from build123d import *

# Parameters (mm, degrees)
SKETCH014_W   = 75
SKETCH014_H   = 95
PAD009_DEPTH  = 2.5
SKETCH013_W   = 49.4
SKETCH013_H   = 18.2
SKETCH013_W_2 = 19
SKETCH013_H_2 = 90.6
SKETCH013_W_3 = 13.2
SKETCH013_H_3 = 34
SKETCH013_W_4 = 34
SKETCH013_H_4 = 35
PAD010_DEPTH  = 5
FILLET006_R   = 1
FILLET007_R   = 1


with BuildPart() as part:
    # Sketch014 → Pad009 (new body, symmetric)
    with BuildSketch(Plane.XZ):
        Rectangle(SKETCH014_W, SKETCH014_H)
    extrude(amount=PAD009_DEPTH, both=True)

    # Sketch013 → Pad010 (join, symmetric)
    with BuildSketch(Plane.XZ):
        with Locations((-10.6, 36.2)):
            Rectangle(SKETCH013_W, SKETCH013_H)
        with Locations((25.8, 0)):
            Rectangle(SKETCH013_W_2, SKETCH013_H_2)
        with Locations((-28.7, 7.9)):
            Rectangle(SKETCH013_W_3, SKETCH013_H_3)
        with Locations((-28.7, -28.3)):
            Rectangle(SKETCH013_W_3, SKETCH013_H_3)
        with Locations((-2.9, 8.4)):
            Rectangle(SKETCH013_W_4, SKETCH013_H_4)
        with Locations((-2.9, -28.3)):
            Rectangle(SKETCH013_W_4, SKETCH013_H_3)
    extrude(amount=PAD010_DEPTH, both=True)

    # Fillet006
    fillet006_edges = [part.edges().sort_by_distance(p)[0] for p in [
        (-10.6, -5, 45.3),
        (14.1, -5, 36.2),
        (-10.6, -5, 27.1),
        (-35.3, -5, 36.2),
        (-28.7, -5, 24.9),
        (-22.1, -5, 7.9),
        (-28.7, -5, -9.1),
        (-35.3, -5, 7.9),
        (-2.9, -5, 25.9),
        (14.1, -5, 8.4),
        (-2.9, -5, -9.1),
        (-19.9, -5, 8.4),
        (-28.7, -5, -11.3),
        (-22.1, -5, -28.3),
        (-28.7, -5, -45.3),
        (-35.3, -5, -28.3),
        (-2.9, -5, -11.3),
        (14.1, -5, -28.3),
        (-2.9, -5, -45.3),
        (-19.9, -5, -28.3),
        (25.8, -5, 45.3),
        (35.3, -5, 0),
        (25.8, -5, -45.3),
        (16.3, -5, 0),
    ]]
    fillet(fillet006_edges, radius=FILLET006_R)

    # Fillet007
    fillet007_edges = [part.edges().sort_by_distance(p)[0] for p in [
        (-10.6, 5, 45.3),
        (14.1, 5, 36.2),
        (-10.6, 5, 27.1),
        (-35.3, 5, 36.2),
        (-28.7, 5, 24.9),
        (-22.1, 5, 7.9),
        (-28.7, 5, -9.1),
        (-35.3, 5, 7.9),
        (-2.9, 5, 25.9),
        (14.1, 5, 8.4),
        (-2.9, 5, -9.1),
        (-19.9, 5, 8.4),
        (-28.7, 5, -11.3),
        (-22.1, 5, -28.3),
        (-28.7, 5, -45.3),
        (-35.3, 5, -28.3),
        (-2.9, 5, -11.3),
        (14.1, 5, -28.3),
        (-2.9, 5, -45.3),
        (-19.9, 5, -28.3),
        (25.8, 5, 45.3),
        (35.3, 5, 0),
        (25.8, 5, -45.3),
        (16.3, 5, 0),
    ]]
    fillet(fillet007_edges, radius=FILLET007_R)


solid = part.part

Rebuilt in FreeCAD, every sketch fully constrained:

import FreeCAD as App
import Part
import Sketcher
from FreeCAD import Vector


def edges_at(feature, points):
    """Names of the edges that pass closest to the given points."""
    edges = feature.Shape.Edges
    near = lambda p: min(range(len(edges)), key=lambda i: edges[i].distToShape(Part.Vertex(*p))[0])
    return sorted({f"Edge{near(p) + 1}" for p in points})

doc = App.newDocument("Part")
body = doc.addObject("PartDesign::Body", "Body")

# Sketch on XZ plane
sketch1 = body.newObject("Sketcher::SketchObject", "Sketch")
sketch1.AttachmentSupport = (doc.getObject("XZ_Plane"), [""])
sketch1.MapMode = "FlatFace"
sketch1.addGeometry([
    Part.LineSegment(Vector(-37.5, 47.5, 0), Vector(-37.5, -47.5, 0)),
    Part.LineSegment(Vector(-37.5, -47.5, 0), Vector(37.5, -47.5, 0)),
    Part.LineSegment(Vector(37.5, -47.5, 0), Vector(37.5, 47.5, 0)),
    Part.LineSegment(Vector(37.5, 47.5, 0), Vector(-37.5, 47.5, 0)),
], False)
sketch1.addConstraint([
    Sketcher.Constraint("Coincident", 0, 2, 1, 1),
    Sketcher.Constraint("Coincident", 1, 2, 2, 1),
    Sketcher.Constraint("Coincident", 2, 2, 3, 1),
    Sketcher.Constraint("Coincident", 3, 2, 0, 1),
    Sketcher.Constraint("Vertical", 0),
    Sketcher.Constraint("Horizontal", 1),
    Sketcher.Constraint("Vertical", 2),
    Sketcher.Constraint("Horizontal", 3),
    Sketcher.Constraint("Symmetric", 0, 2, 2, 2, -1, 1),
    Sketcher.Constraint("DistanceX", 1, 1, 1, 2, 75.0),
    Sketcher.Constraint("DistanceY", 0, 2, 0, 1, 95.0),
])
pad1 = body.newObject("PartDesign::Pad", "Pad")
pad1.Profile = sketch1
pad1.Length = 5
pad1.Midplane = True

# Sketch on XZ plane
sketch2 = body.newObject("Sketcher::SketchObject", "Sketch001")
sketch2.AttachmentSupport = (doc.getObject("XZ_Plane"), [""])
sketch2.MapMode = "FlatFace"
sketch2.addGeometry([
    Part.LineSegment(Vector(-35.3, 45.3, 0), Vector(-35.3, 27.1, 0)),  # 0
    Part.LineSegment(Vector(-35.3, 27.1, 0), Vector(14.1, 27.1, 0)),  # 1
    Part.LineSegment(Vector(14.1, 27.1, 0), Vector(14.1, 45.3, 0)),  # 2
    Part.LineSegment(Vector(14.1, 45.3, 0), Vector(-35.3, 45.3, 0)),  # 3
    Part.LineSegment(Vector(16.3, 45.3, 0), Vector(16.3, -45.3, 0)),  # 4
    Part.LineSegment(Vector(16.3, -45.3, 0), Vector(35.3, -45.3, 0)),  # 5
    Part.LineSegment(Vector(35.3, -45.3, 0), Vector(35.3, 45.3, 0)),  # 6
    Part.LineSegment(Vector(35.3, 45.3, 0), Vector(16.3, 45.3, 0)),  # 7
    Part.LineSegment(Vector(-35.3, 24.9, 0), Vector(-35.3, -9.1, 0)),  # 8
    Part.LineSegment(Vector(-35.3, -9.1, 0), Vector(-22.1, -9.1, 0)),  # 9
    Part.LineSegment(Vector(-22.1, -9.1, 0), Vector(-22.1, 24.9, 0)),  # 10
    Part.LineSegment(Vector(-22.1, 24.9, 0), Vector(-35.3, 24.9, 0)),  # 11
    Part.LineSegment(Vector(-35.3, -11.3, 0), Vector(-35.3, -45.3, 0)),  # 12
    Part.LineSegment(Vector(-35.3, -45.3, 0), Vector(-22.1, -45.3, 0)),  # 13
    Part.LineSegment(Vector(-22.1, -45.3, 0), Vector(-22.1, -11.3, 0)),  # 14
    Part.LineSegment(Vector(-22.1, -11.3, 0), Vector(-35.3, -11.3, 0)),  # 15
    Part.LineSegment(Vector(-19.9, 25.9, 0), Vector(-19.9, -9.1, 0)),  # 16
    Part.LineSegment(Vector(-19.9, -9.1, 0), Vector(14.1, -9.1, 0)),  # 17
    Part.LineSegment(Vector(14.1, -9.1, 0), Vector(14.1, 25.9, 0)),  # 18
    Part.LineSegment(Vector(14.1, 25.9, 0), Vector(-19.9, 25.9, 0)),  # 19
    Part.LineSegment(Vector(-19.9, -11.3, 0), Vector(-19.9, -45.3, 0)),  # 20
    Part.LineSegment(Vector(-19.9, -45.3, 0), Vector(14.1, -45.3, 0)),  # 21
    Part.LineSegment(Vector(14.1, -45.3, 0), Vector(14.1, -11.3, 0)),  # 22
    Part.LineSegment(Vector(14.1, -11.3, 0), Vector(-19.9, -11.3, 0)),  # 23
], False)
sketch2.addConstraint([
    Sketcher.Constraint("Coincident", 0, 2, 1, 1),
    Sketcher.Constraint("Coincident", 1, 2, 2, 1),
    Sketcher.Constraint("Coincident", 2, 2, 3, 1),
    Sketcher.Constraint("Coincident", 3, 2, 0, 1),
    Sketcher.Constraint("Coincident", 4, 2, 5, 1),
    Sketcher.Constraint("Coincident", 5, 2, 6, 1),
    Sketcher.Constraint("Coincident", 6, 2, 7, 1),
    Sketcher.Constraint("Coincident", 7, 2, 4, 1),
    Sketcher.Constraint("Coincident", 8, 2, 9, 1),
    Sketcher.Constraint("Coincident", 9, 2, 10, 1),
    Sketcher.Constraint("Coincident", 10, 2, 11, 1),
    Sketcher.Constraint("Coincident", 11, 2, 8, 1),
    Sketcher.Constraint("Coincident", 12, 2, 13, 1),
    Sketcher.Constraint("Coincident", 13, 2, 14, 1),
    Sketcher.Constraint("Coincident", 14, 2, 15, 1),
    Sketcher.Constraint("Coincident", 15, 2, 12, 1),
    Sketcher.Constraint("Coincident", 16, 2, 17, 1),
    Sketcher.Constraint("Coincident", 17, 2, 18, 1),
    Sketcher.Constraint("Coincident", 18, 2, 19, 1),
    Sketcher.Constraint("Coincident", 19, 2, 16, 1),
    Sketcher.Constraint("Coincident", 20, 2, 21, 1),
    Sketcher.Constraint("Coincident", 21, 2, 22, 1),
    Sketcher.Constraint("Coincident", 22, 2, 23, 1),
    Sketcher.Constraint("Coincident", 23, 2, 20, 1),
    Sketcher.Constraint("Vertical", 0),
    Sketcher.Constraint("Horizontal", 1),
    Sketcher.Constraint("Vertical", 2),
    Sketcher.Constraint("Horizontal", 3),
    Sketcher.Constraint("Vertical", 4),
    Sketcher.Constraint("Horizontal", 5),
    Sketcher.Constraint("Vertical", 6),
    Sketcher.Constraint("Horizontal", 7),
    Sketcher.Constraint("Vertical", 8),
    Sketcher.Constraint("Horizontal", 9),
    Sketcher.Constraint("Vertical", 10),
    Sketcher.Constraint("Horizontal", 11),
    Sketcher.Constraint("Vertical", 12),
    Sketcher.Constraint("Horizontal", 13),
    Sketcher.Constraint("Vertical", 14),
    Sketcher.Constraint("Horizontal", 15),
    Sketcher.Constraint("Vertical", 16),
    Sketcher.Constraint("Horizontal", 17),
    Sketcher.Constraint("Vertical", 18),
    Sketcher.Constraint("Horizontal", 19),
    Sketcher.Constraint("Vertical", 20),
    Sketcher.Constraint("Horizontal", 21),
    Sketcher.Constraint("Vertical", 22),
    Sketcher.Constraint("Horizontal", 23),
    Sketcher.Constraint("Symmetric", 3, 2, 5, 2, -1, 1),
    Sketcher.Constraint("Symmetric", 6, 2, 12, 2, -1, 1),
    Sketcher.Constraint("Symmetric", 2, 2, 21, 2, -1),
    Sketcher.Constraint("Horizontal", 3, 2, 6, 2),
    Sketcher.Constraint("Horizontal", 9, 2, 16, 2),
    Sketcher.Constraint("Horizontal", 15, 2, 22, 2),
    Sketcher.Constraint("Vertical", 3, 2, 8, 2),
    Sketcher.Constraint("Vertical", 10, 2, 13, 2),
    Sketcher.Constraint("Vertical", 2, 2, 17, 2),
    Sketcher.Constraint("Vertical", 19, 2, 20, 2),
    Sketcher.Constraint("Equal", 23, 8),
    Sketcher.Constraint("Equal", 10, 12),
    Sketcher.Constraint("DistanceX", 5, 1, 5, 2, 19.0),
    Sketcher.Constraint("DistanceX", 17, 1, 17, 2, 34.0),
    Sketcher.Constraint("DistanceY", 16, 2, 16, 1, 35.0),
    Sketcher.Constraint("DistanceX", 1, 1, 1, 2, 49.4),
    Sketcher.Constraint("DistanceX", 9, 1, 9, 2, 13.2),
    Sketcher.Constraint("DistanceY", 0, 2, 0, 1, 18.2),
    Sketcher.Constraint("DistanceY", 4, 2, 4, 1, 90.6),
    Sketcher.Constraint("DistanceX", 0, 2, -1, 1, 35.3),
    Sketcher.Constraint("DistanceY", 8, 2, -1, 1, 9.1),
])
pad2 = body.newObject("PartDesign::Pad", "Pad001")
pad2.Profile = sketch2
pad2.Length = 10
pad2.Midplane = True
doc.recompute()

fillet = body.newObject("PartDesign::Fillet", "Fillet")
fillet.Base = (pad2, edges_at(pad2, [
    (-10.6, -5, 45.3),
    (14.1, -5, 36.2),
    (-10.6, -5, 27.1),
    (-35.3, -5, 36.2),
    (-28.7, -5, 24.9),
    (-22.1, -5, 7.9),
    (-28.7, -5, -9.1),
    (-35.3, -5, 7.9),
    (-2.9, -5, 25.9),
    (14.1, -5, 8.4),
    (-2.9, -5, -9.1),
    (-19.9, -5, 8.4),
    (-28.7, -5, -11.3),
    (-22.1, -5, -28.3),
    (-28.7, -5, -45.3),
    (-35.3, -5, -28.3),
    (-2.9, -5, -11.3),
    (14.1, -5, -28.3),
    (-2.9, -5, -45.3),
    (-19.9, -5, -28.3),
    (25.8, -5, 45.3),
    (35.3, -5, 0),
    (25.8, -5, -45.3),
    (16.3, -5, 0),
]))
fillet.Radius = 1
doc.recompute()

fillet2 = body.newObject("PartDesign::Fillet", "Fillet001")
fillet2.Base = (fillet, edges_at(fillet, [
    (-10.6, 5, 45.3),
    (14.1, 5, 36.2),
    (-10.6, 5, 27.1),
    (-35.3, 5, 36.2),
    (-28.7, 5, 24.9),
    (-22.1, 5, 7.9),
    (-28.7, 5, -9.1),
    (-35.3, 5, 7.9),
    (-2.9, 5, 25.9),
    (14.1, 5, 8.4),
    (-2.9, 5, -9.1),
    (-19.9, 5, 8.4),
    (-28.7, 5, -11.3),
    (-22.1, 5, -28.3),
    (-28.7, 5, -45.3),
    (-35.3, 5, -28.3),
    (-2.9, 5, -11.3),
    (14.1, 5, -28.3),
    (-2.9, 5, -45.3),
    (-19.9, 5, -28.3),
    (25.8, 5, 45.3),
    (35.3, 5, 0),
    (25.8, 5, -45.3),
    (16.3, 5, 0),
]))
fillet2.Radius = 1

doc.recompute()
